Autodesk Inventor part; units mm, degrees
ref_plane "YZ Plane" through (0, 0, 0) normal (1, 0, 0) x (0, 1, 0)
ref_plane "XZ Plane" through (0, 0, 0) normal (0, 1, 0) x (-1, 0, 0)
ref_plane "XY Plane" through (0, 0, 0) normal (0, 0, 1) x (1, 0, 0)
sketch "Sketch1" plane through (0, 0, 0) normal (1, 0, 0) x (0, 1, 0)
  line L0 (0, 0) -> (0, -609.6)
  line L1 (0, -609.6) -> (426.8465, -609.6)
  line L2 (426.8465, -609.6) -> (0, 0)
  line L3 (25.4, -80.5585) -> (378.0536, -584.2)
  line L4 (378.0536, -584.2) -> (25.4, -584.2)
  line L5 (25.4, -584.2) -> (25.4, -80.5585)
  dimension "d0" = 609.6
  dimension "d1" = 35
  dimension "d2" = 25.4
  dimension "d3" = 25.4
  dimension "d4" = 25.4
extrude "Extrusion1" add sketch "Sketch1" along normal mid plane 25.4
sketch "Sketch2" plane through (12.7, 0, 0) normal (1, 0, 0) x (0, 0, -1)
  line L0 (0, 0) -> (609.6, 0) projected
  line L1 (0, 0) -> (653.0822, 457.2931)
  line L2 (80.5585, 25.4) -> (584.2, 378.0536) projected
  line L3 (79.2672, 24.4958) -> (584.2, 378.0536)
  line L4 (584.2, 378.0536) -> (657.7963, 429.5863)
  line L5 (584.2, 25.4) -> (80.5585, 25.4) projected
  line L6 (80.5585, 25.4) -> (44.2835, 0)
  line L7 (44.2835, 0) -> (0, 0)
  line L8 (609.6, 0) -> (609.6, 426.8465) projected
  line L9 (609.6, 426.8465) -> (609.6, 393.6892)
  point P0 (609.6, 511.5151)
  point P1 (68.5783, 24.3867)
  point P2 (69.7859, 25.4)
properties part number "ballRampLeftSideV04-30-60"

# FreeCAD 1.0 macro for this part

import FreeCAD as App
import Part
import Sketcher

V = App.Vector
Q = App.Units.Quantity

doc = App.newDocument("Part")
body = doc.addObject("PartDesign::Body", "Body")

# Sketch on YZ plane
sketch1 = body.newObject("Sketcher::SketchObject", "Sketch")
sketch1.AttachmentSupport = (doc.getObject("YZ_Plane"), [""])
sketch1.MapMode = "FlatFace"
sketch1.addGeometry([
    Part.LineSegment(V(427, -610, 0), V(0, 0, 0)),  # 0
    Part.LineSegment(V(0, 0, 0), V(0, -610, 0)),  # 1
    Part.LineSegment(V(0, -610, 0), V(427, -610, 0)),  # 2
    Part.LineSegment(V(25, -584, 0), V(25, -81, 0)),  # 3
    Part.LineSegment(V(25, -81, 0), V(378, -584, 0)),  # 4
    Part.LineSegment(V(378, -584, 0), V(25, -584, 0)),  # 5
], False)
sketch1.addConstraint([
    Sketcher.Constraint("Coincident", 0, 2, 1, 1),
    Sketcher.Constraint("Coincident", 1, 2, 2, 1),
    Sketcher.Constraint("Coincident", 2, 2, 0, 1),
    Sketcher.Constraint("Coincident", 3, 2, 4, 1),
    Sketcher.Constraint("Coincident", 4, 2, 5, 1),
    Sketcher.Constraint("Coincident", 5, 2, 3, 1),
    Sketcher.Constraint("Vertical", 1),
    Sketcher.Constraint("Horizontal", 2),
    Sketcher.Constraint("Vertical", 3),
    Sketcher.Constraint("Horizontal", 5),
    Sketcher.Constraint("Coincident", 0, 2, -1, 1),
    Sketcher.Constraint("Parallel", 0, 4),
    Sketcher.Constraint("DistanceY", 1, 2, 1, 1, Q("24 in")),
    Sketcher.Constraint("DistanceX", -1, 1, 3, 2, Q("1 in")),
    Sketcher.Constraint("DistanceY", 2, 2, 4, 2, Q("1 in")),
    Sketcher.Constraint("Angle", 0, Q("125 deg")),
    Sketcher.Constraint("DistanceX", 5, 2, 5, 1, Q("13.884 in")),
])
pad1 = body.newObject("PartDesign::Pad", "Pad")
pad1.Profile = sketch1
pad1.Length = Q("1 in")
pad1.Midplane = True

doc.recompute()
